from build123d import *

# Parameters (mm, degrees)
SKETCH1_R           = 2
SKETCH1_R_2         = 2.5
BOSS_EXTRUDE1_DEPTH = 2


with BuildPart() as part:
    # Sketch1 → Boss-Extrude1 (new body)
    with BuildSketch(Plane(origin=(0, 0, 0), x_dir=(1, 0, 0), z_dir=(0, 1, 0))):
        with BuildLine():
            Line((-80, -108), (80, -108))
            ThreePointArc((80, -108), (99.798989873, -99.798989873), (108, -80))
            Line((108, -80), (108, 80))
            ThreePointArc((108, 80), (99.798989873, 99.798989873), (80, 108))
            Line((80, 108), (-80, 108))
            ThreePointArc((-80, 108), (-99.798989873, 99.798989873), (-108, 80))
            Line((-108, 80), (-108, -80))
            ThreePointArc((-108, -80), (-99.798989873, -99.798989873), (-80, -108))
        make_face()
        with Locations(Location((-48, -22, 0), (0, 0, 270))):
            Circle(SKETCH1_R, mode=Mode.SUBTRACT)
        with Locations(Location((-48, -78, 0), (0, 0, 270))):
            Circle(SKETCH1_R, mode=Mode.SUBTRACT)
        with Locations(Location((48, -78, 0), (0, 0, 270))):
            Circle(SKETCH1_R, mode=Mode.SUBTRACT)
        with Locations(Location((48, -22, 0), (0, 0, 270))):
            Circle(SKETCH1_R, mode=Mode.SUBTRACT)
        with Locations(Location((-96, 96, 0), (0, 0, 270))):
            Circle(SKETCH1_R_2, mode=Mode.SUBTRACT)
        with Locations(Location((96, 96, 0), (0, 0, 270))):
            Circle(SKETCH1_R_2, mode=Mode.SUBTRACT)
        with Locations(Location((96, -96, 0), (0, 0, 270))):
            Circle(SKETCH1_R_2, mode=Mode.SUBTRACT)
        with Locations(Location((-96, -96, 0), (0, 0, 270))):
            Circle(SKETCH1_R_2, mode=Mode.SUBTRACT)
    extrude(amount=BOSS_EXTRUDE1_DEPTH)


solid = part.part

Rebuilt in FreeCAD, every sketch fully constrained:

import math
import FreeCAD as App
import Part
import Sketcher
Q = App.Units.Quantity

doc = App.newDocument("Part")
body = doc.addObject("PartDesign::Body", "Body")

# Sketch on XZ plane
sketch1 = body.newObject("Sketcher::SketchObject", "Sketch")
sketch1.AttachmentSupport = (doc.getObject("XZ_Plane"), [""])
sketch1.MapMode = "FlatFace"
sketch1.addGeometry(Part.LineSegment(App.Vector(-80, 108, 0), App.Vector(80, 108, 0)), False)
sketch1.addGeometry(Part.ArcOfCircle(Part.Circle(App.Vector(80, 80, 0), App.Vector(0, 0, 1), 28), math.radians(0), math.radians(90)), False)
sketch1.addGeometry(Part.LineSegment(App.Vector(108, 80, 0), App.Vector(108, -80, 0)), False)
sketch1.addGeometry(Part.ArcOfCircle(Part.Circle(App.Vector(80, -80, 0), App.Vector(0, 0, 1), 28), math.radians(-90), math.radians(0)), False)
sketch1.addGeometry(Part.LineSegment(App.Vector(80, -108, 0), App.Vector(-80, -108, 0)), False)
sketch1.addGeometry(Part.ArcOfCircle(Part.Circle(App.Vector(-80, -80, 0), App.Vector(0, 0, 1), 28), math.radians(-180), math.radians(-90)), False)
sketch1.addGeometry(Part.LineSegment(App.Vector(-108, -80, 0), App.Vector(-108, 80, 0)), False)
sketch1.addGeometry(Part.ArcOfCircle(Part.Circle(App.Vector(-80, 80, 0), App.Vector(0, 0, 1), 28), math.radians(90), math.radians(180)), False)
sketch1.addGeometry(Part.Circle(App.Vector(-96, 96, 0), App.Vector(0, 0, 1), 2.5), False)
sketch1.addGeometry(Part.Circle(App.Vector(-48, 78, 0), App.Vector(0, 0, 1), 2), False)
sketch1.addGeometry(Part.Circle(App.Vector(-48, 22, 0), App.Vector(0, 0, 1), 2), False)
sketch1.addGeometry(Part.Circle(App.Vector(48, 78, 0), App.Vector(0, 0, 1), 2), False)
sketch1.addGeometry(Part.Circle(App.Vector(96, 96, 0), App.Vector(0, 0, 1), 2.5), False)
sketch1.addGeometry(Part.Circle(App.Vector(48, 22, 0), App.Vector(0, 0, 1), 2), False)
sketch1.addGeometry(Part.Circle(App.Vector(-96, -96, 0), App.Vector(0, 0, 1), 2.5), False)
sketch1.addGeometry(Part.Circle(App.Vector(96, -96, 0), App.Vector(0, 0, 1), 2.5), False)
sketch1.addConstraint(Sketcher.Constraint("Tangent", 0, 2, 1, 2))
sketch1.addConstraint(Sketcher.Constraint("Tangent", 1, 1, 2, 1))
sketch1.addConstraint(Sketcher.Constraint("Tangent", 2, 2, 3, 2))
sketch1.addConstraint(Sketcher.Constraint("Tangent", 3, 1, 4, 1))
sketch1.addConstraint(Sketcher.Constraint("Tangent", 4, 2, 5, 2))
sketch1.addConstraint(Sketcher.Constraint("Tangent", 5, 1, 6, 1))
sketch1.addConstraint(Sketcher.Constraint("Tangent", 6, 2, 7, 2))
sketch1.addConstraint(Sketcher.Constraint("Tangent", 7, 1, 0, 1))
sketch1.addConstraint(Sketcher.Constraint("Horizontal", 0))
sketch1.addConstraint(Sketcher.Constraint("Vertical", 2))
sketch1.addConstraint(Sketcher.Constraint("Horizontal", 4))
sketch1.addConstraint(Sketcher.Constraint("Vertical", 6))
sketch1.addConstraint(Sketcher.Constraint("Equal", 1, 3))
sketch1.addConstraint(Sketcher.Constraint("Equal", 3, 5))
sketch1.addConstraint(Sketcher.Constraint("Equal", 5, 7))
sketch1.addConstraint(Sketcher.Constraint("Equal", 9, 10))
sketch1.addConstraint(Sketcher.Constraint("Equal", 10, 11))
sketch1.addConstraint(Sketcher.Constraint("Equal", 8, 12))
sketch1.addConstraint(Sketcher.Constraint("Equal", 11, 13))
sketch1.addConstraint(Sketcher.Constraint("Equal", 12, 14))
sketch1.addConstraint(Sketcher.Constraint("Equal", 14, 15))
sketch1.addConstraint(Sketcher.Constraint("Symmetric", 1, 3, 5, 3, -1, 1))
sketch1.addConstraint(Sketcher.Constraint("Symmetric", 12, 3, 14, 3, -1, 1))
sketch1.addConstraint(Sketcher.Constraint("Symmetric", 8, 3, 15, 3, -1, 1))
sketch1.addConstraint(Sketcher.Constraint("Symmetric", 9, 3, 11, 3, -2))
sketch1.addConstraint(Sketcher.Constraint("Symmetric", 8, 3, 12, 3, -2))
sketch1.addConstraint(Sketcher.Constraint("Symmetric", 10, 3, 13, 3, -2))
sketch1.addConstraint(Sketcher.Constraint("Vertical", 9, 3, 10, 3))
sketch1.addConstraint(Sketcher.Constraint("Equal", 4, 2))
sketch1.addConstraint(Sketcher.Constraint("Diameter", 8, Q("5 mm")))
sketch1.addConstraint(Sketcher.Constraint("Diameter", 9, Q("4 mm")))
sketch1.addConstraint(Sketcher.Constraint("Radius", 1, Q("28 mm")))
sketch1.addConstraint(Sketcher.Constraint("DistanceX", 0, 1, 0, 2, Q("160 mm")))
sketch1.addConstraint(Sketcher.Constraint("DistanceX", 8, 3, -1, 1, Q("96 mm")))
sketch1.addConstraint(Sketcher.Constraint("DistanceY", -1, 1, 8, 3, Q("96 mm")))
sketch1.addConstraint(Sketcher.Constraint("DistanceX", 9, 3, -1, 1, Q("48 mm")))
sketch1.addConstraint(Sketcher.Constraint("DistanceY", -1, 1, 9, 3, Q("78 mm")))
sketch1.addConstraint(Sketcher.Constraint("DistanceY", -1, 1, 10, 3, Q("22 mm")))
pad1 = body.newObject("PartDesign::Pad", "Pad")
pad1.Profile = sketch1
pad1.Length = 2
pad1.Reversed = True

doc.recompute()
